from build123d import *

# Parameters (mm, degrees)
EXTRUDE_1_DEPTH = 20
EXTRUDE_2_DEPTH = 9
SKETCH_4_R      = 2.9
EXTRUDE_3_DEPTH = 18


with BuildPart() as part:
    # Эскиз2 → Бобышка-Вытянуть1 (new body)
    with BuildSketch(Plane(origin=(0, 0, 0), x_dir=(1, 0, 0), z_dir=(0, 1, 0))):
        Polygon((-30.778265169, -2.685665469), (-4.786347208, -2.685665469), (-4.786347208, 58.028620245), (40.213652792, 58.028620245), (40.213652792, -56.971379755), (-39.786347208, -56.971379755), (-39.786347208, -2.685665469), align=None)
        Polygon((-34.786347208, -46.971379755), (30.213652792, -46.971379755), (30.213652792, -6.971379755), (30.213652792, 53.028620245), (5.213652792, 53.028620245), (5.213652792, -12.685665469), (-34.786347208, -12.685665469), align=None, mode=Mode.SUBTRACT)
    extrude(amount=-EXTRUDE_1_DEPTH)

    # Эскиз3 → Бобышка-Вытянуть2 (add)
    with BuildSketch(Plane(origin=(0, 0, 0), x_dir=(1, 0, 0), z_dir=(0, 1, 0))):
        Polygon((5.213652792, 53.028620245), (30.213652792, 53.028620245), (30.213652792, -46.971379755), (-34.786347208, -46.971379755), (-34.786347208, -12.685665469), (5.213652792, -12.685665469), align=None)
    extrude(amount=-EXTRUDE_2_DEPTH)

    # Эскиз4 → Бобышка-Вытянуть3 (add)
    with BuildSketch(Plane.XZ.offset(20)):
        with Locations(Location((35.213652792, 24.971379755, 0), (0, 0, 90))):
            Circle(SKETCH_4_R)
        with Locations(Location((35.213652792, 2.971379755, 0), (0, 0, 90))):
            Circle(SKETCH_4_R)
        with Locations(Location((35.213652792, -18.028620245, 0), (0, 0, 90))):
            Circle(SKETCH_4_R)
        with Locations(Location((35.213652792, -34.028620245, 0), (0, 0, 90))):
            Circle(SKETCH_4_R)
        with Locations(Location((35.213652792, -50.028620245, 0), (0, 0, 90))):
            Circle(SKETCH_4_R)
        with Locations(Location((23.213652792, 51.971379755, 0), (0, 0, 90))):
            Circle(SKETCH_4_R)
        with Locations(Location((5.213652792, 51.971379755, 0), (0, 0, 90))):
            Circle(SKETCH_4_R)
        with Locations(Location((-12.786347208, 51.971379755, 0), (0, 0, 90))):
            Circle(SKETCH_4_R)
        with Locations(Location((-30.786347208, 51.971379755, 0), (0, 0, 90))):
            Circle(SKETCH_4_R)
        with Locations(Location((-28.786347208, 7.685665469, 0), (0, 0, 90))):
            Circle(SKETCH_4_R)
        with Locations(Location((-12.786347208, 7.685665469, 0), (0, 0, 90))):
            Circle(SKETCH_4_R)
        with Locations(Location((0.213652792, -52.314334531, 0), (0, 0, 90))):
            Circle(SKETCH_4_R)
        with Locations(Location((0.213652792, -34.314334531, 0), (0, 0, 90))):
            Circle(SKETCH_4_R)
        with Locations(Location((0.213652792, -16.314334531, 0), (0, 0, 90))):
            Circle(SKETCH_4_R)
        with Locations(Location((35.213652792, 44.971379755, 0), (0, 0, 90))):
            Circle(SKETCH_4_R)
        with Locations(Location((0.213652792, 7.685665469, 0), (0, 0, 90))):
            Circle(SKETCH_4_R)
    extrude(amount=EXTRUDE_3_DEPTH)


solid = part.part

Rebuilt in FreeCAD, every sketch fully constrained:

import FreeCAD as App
import Part
import Sketcher

V = App.Vector
Q = App.Units.Quantity

doc = App.newDocument("Part")
params = doc.addObject("Spreadsheet::Sheet", "Params")
for row, (alias, value) in enumerate([
    ("sketch1_width", "35 mm"),
    ("sketch1_width2", "80 mm"),
    ("sketch1_width3", "40 mm"),
    ("sketch1_width4", "25 mm"),
    ("sketch1_height", "115 mm"),
    ("pad1_length", "20 mm"),
    ("sketch2_width", "25 mm"),
    ("sketch2_width2", "40 mm"),
    ("sketch2_height", "100 mm"),
    ("pad2_length", "9 mm"),
    ("sketch3_diameter", "5.8 mm"),
    ("pad3_length", "18 mm"),
], start=1):
    params.set(f"A{row}", alias)
    params.set(f"B{row}", "=" + value)
    params.setAlias(f"B{row}", alias)

body = doc.addObject("PartDesign::Body", "Body")

sketch1 = body.newObject("Sketcher::SketchObject", "Sketch")
sketch1.AttachmentSupport = (doc.getObject("XZ_Plane"), [""])
sketch1.MapMode = "FlatFace"
sketch1.addGeometry(Part.LineSegment(V(-5, 3, 0), V(-40, 3, 0)), False)
sketch1.addGeometry(Part.LineSegment(V(-40, 3, 0), V(-40, 57, 0)), False)
sketch1.addGeometry(Part.LineSegment(V(-40, 57, 0), V(40, 57, 0)), False)
sketch1.addGeometry(Part.LineSegment(V(40, 57, 0), V(40, -58, 0)), False)
sketch1.addGeometry(Part.LineSegment(V(40, -58, 0), V(-5, -58, 0)), False)
sketch1.addGeometry(Part.LineSegment(V(-5, -58, 0), V(-5, 3, 0)), False)
sketch1.addGeometry(Part.LineSegment(V(-35, 47, 0), V(-35, 13, 0)), False)
sketch1.addGeometry(Part.LineSegment(V(-35, 13, 0), V(5, 13, 0)), False)
sketch1.addGeometry(Part.LineSegment(V(5, 13, 0), V(5, -53, 0)), False)
sketch1.addGeometry(Part.LineSegment(V(5, -53, 0), V(30, -53, 0)), False)
sketch1.addGeometry(Part.LineSegment(V(30, -53, 0), V(30, 47, 0)), False)
sketch1.addGeometry(Part.LineSegment(V(30, 47, 0), V(-35, 47, 0)), False)
sketch1.addConstraint(Sketcher.Constraint("Coincident", 0, 2, 1, 1))
sketch1.addConstraint(Sketcher.Constraint("Coincident", 1, 2, 2, 1))
sketch1.addConstraint(Sketcher.Constraint("Coincident", 2, 2, 3, 1))
sketch1.addConstraint(Sketcher.Constraint("Coincident", 3, 2, 4, 1))
sketch1.addConstraint(Sketcher.Constraint("Coincident", 4, 2, 5, 1))
sketch1.addConstraint(Sketcher.Constraint("Coincident", 5, 2, 0, 1))
sketch1.addConstraint(Sketcher.Constraint("Coincident", 6, 2, 7, 1))
sketch1.addConstraint(Sketcher.Constraint("Coincident", 7, 2, 8, 1))
sketch1.addConstraint(Sketcher.Constraint("Coincident", 8, 2, 9, 1))
sketch1.addConstraint(Sketcher.Constraint("Coincident", 9, 2, 10, 1))
sketch1.addConstraint(Sketcher.Constraint("Coincident", 10, 2, 11, 1))
sketch1.addConstraint(Sketcher.Constraint("Coincident", 11, 2, 6, 1))
sketch1.addConstraint(Sketcher.Constraint("Horizontal", 0))
sketch1.addConstraint(Sketcher.Constraint("Vertical", 1))
sketch1.addConstraint(Sketcher.Constraint("Horizontal", 2))
sketch1.addConstraint(Sketcher.Constraint("Vertical", 3))
sketch1.addConstraint(Sketcher.Constraint("Horizontal", 4))
sketch1.addConstraint(Sketcher.Constraint("Vertical", 5))
sketch1.addConstraint(Sketcher.Constraint("Vertical", 6))
sketch1.addConstraint(Sketcher.Constraint("Horizontal", 7))
sketch1.addConstraint(Sketcher.Constraint("Vertical", 8))
sketch1.addConstraint(Sketcher.Constraint("Horizontal", 9))
sketch1.addConstraint(Sketcher.Constraint("Vertical", 10))
sketch1.addConstraint(Sketcher.Constraint("Horizontal", 11))
sketch1.addConstraint(Sketcher.Constraint("DistanceX", 0, 2, 0, 1, Q("35 mm")))
sketch1.addConstraint(Sketcher.Constraint("DistanceX", 2, 1, 2, 2, Q("80 mm")))
sketch1.addConstraint(Sketcher.Constraint("DistanceX", 7, 1, 7, 2, Q("40 mm")))
sketch1.addConstraint(Sketcher.Constraint("DistanceX", 9, 1, 9, 2, Q("25 mm")))
sketch1.addConstraint(Sketcher.Constraint("DistanceY", 3, 2, 3, 1, Q("115 mm")))
sketch1.addConstraint(Sketcher.Constraint("DistanceY", 10, 1, 10, 2, Q("100 mm")))
sketch1.addConstraint(Sketcher.Constraint("DistanceX", 0, 2, 6, 2, Q("5 mm")))
sketch1.addConstraint(Sketcher.Constraint("DistanceY", 0, 2, 6, 2, Q("10 mm")))
sketch1.addConstraint(Sketcher.Constraint("DistanceY", 4, 2, 8, 2, Q("5 mm")))
sketch1.addConstraint(Sketcher.Constraint("DistanceY", 1, 1, 1, 2, Q("54.285714 mm")))
sketch1.addConstraint(Sketcher.Constraint("DistanceY", -1, 1, 1, 2, Q("56.97138 mm")))
sketch1.addConstraint(Sketcher.Constraint("DistanceX", 0, 2, -1, 1, Q("39.786347 mm")))
sketch1.setExpression("Constraints[24]", "Params.sketch1_width")
sketch1.setExpression("Constraints[25]", "Params.sketch1_width2")
sketch1.setExpression("Constraints[26]", "Params.sketch1_width3")
sketch1.setExpression("Constraints[27]", "Params.sketch1_width4")
sketch1.setExpression("Constraints[28]", "Params.sketch1_height")
pad1 = body.newObject("PartDesign::Pad", "Pad")
pad1.Profile = sketch1
pad1.setExpression("Length", "Params.pad1_length")

sketch2 = body.newObject("Sketcher::SketchObject", "Sketch001")
sketch2.AttachmentSupport = (doc.getObject("XZ_Plane"), [""])
sketch2.MapMode = "FlatFace"
sketch2.addGeometry(Part.LineSegment(V(30, -53, 0), V(5, -53, 0)), False)
sketch2.addGeometry(Part.LineSegment(V(5, -53, 0), V(5, 13, 0)), False)
sketch2.addGeometry(Part.LineSegment(V(5, 13, 0), V(-35, 13, 0)), False)
sketch2.addGeometry(Part.LineSegment(V(-35, 13, 0), V(-35, 47, 0)), False)
sketch2.addGeometry(Part.LineSegment(V(-35, 47, 0), V(30, 47, 0)), False)
sketch2.addGeometry(Part.LineSegment(V(30, 47, 0), V(30, -53, 0)), False)
sketch2.addConstraint(Sketcher.Constraint("Coincident", 0, 2, 1, 1))
sketch2.addConstraint(Sketcher.Constraint("Coincident", 1, 2, 2, 1))
sketch2.addConstraint(Sketcher.Constraint("Coincident", 2, 2, 3, 1))
sketch2.addConstraint(Sketcher.Constraint("Coincident", 3, 2, 4, 1))
sketch2.addConstraint(Sketcher.Constraint("Coincident", 4, 2, 5, 1))
sketch2.addConstraint(Sketcher.Constraint("Coincident", 5, 2, 0, 1))
sketch2.addConstraint(Sketcher.Constraint("Horizontal", 0))
sketch2.addConstraint(Sketcher.Constraint("Vertical", 1))
sketch2.addConstraint(Sketcher.Constraint("Horizontal", 2))
sketch2.addConstraint(Sketcher.Constraint("Vertical", 3))
sketch2.addConstraint(Sketcher.Constraint("Horizontal", 4))
sketch2.addConstraint(Sketcher.Constraint("Vertical", 5))
sketch2.addConstraint(Sketcher.Constraint("DistanceX", 0, 2, 0, 1, Q("25 mm")))
sketch2.addConstraint(Sketcher.Constraint("DistanceX", 2, 2, 2, 1, Q("40 mm")))
sketch2.addConstraint(Sketcher.Constraint("DistanceY", 5, 2, 5, 1, Q("100 mm")))
sketch2.addConstraint(Sketcher.Constraint("DistanceY", 1, 1, 1, 2, Q("65.714286 mm")))
sketch2.addConstraint(Sketcher.Constraint("DistanceY", 0, 2, -1, 1, Q("53.02862 mm")))
sketch2.addConstraint(Sketcher.Constraint("DistanceX", -1, 1, 0, 2, Q("5.213653 mm")))
sketch2.setExpression("Constraints[12]", "Params.sketch2_width")
sketch2.setExpression("Constraints[13]", "Params.sketch2_width2")
sketch2.setExpression("Constraints[14]", "Params.sketch2_height")
pad2 = body.newObject("PartDesign::Pad", "Pad001")
pad2.Profile = sketch2
pad2.setExpression("Length", "Params.pad2_length")

sketch3 = body.newObject("Sketcher::SketchObject", "Sketch002")
sketch3.AttachmentSupport = (doc.getObject("XZ_Plane"), [""])
sketch3.MapMode = "FlatFace"
sketch3.AttachmentOffset = App.Placement(V(0, 0, 20), App.Rotation())
sketch3.addGeometry(Part.Circle(V(35.2, 25, 0), V(0, 0, 1), 2.9), False)
sketch3.addGeometry(Part.Circle(V(35.2, 3, 0), V(0, 0, 1), 2.9), False)
sketch3.addGeometry(Part.Circle(V(35.2, -18, 0), V(0, 0, 1), 2.9), False)
sketch3.addGeometry(Part.Circle(V(35.2, -34, 0), V(0, 0, 1), 2.9), False)
sketch3.addGeometry(Part.Circle(V(35.2, -50, 0), V(0, 0, 1), 2.9), False)
sketch3.addGeometry(Part.Circle(V(23.2, 52, 0), V(0, 0, 1), 2.9), False)
sketch3.addGeometry(Part.Circle(V(5.2, 52, 0), V(0, 0, 1), 2.9), False)
sketch3.addGeometry(Part.Circle(V(-12.8, 52, 0), V(0, 0, 1), 2.9), False)
sketch3.addGeometry(Part.Circle(V(-30.8, 52, 0), V(0, 0, 1), 2.9), False)
sketch3.addGeometry(Part.Circle(V(-28.8, 7.7, 0), V(0, 0, 1), 2.9), False)
sketch3.addGeometry(Part.Circle(V(-12.8, 7.7, 0), V(0, 0, 1), 2.9), False)
sketch3.addGeometry(Part.Circle(V(0.2, -52.3, 0), V(0, 0, 1), 2.9), False)
sketch3.addGeometry(Part.Circle(V(0.2, -34.3, 0), V(0, 0, 1), 2.9), False)
sketch3.addGeometry(Part.Circle(V(0.2, -16.3, 0), V(0, 0, 1), 2.9), False)
sketch3.addGeometry(Part.Circle(V(35.2, 45, 0), V(0, 0, 1), 2.9), False)
sketch3.addGeometry(Part.Circle(V(0.2, 7.7, 0), V(0, 0, 1), 2.9), False)
sketch3.addConstraint(Sketcher.Constraint("Equal", 0, 1))
sketch3.addConstraint(Sketcher.Constraint("Equal", 1, 2))
sketch3.addConstraint(Sketcher.Constraint("Equal", 2, 3))
sketch3.addConstraint(Sketcher.Constraint("Equal", 3, 4))
sketch3.addConstraint(Sketcher.Constraint("Equal", 4, 5))
sketch3.addConstraint(Sketcher.Constraint("Equal", 5, 6))
sketch3.addConstraint(Sketcher.Constraint("Equal", 6, 7))
sketch3.addConstraint(Sketcher.Constraint("Equal", 7, 8))
sketch3.addConstraint(Sketcher.Constraint("Equal", 8, 9))
sketch3.addConstraint(Sketcher.Constraint("Equal", 9, 10))
sketch3.addConstraint(Sketcher.Constraint("Equal", 10, 11))
sketch3.addConstraint(Sketcher.Constraint("Equal", 11, 12))
sketch3.addConstraint(Sketcher.Constraint("Equal", 12, 13))
sketch3.addConstraint(Sketcher.Constraint("Equal", 13, 14))
sketch3.addConstraint(Sketcher.Constraint("Equal", 14, 15))
sketch3.addConstraint(Sketcher.Constraint("Horizontal", 5, 3, 6, 3))
sketch3.addConstraint(Sketcher.Constraint("Horizontal", 6, 3, 7, 3))
sketch3.addConstraint(Sketcher.Constraint("Horizontal", 7, 3, 8, 3))
sketch3.addConstraint(Sketcher.Constraint("Horizontal", 9, 3, 10, 3))
sketch3.addConstraint(Sketcher.Constraint("Horizontal", 10, 3, 15, 3))
sketch3.addConstraint(Sketcher.Constraint("Vertical", 0, 3, 1, 3))
sketch3.addConstraint(Sketcher.Constraint("Vertical", 1, 3, 2, 3))
sketch3.addConstraint(Sketcher.Constraint("Vertical", 2, 3, 3, 3))
sketch3.addConstraint(Sketcher.Constraint("Vertical", 3, 3, 4, 3))
sketch3.addConstraint(Sketcher.Constraint("Vertical", 7, 3, 10, 3))
sketch3.addConstraint(Sketcher.Constraint("Vertical", 11, 3, 12, 3))
sketch3.addConstraint(Sketcher.Constraint("Vertical", 12, 3, 13, 3))
sketch3.addConstraint(Sketcher.Constraint("Vertical", 4, 3, 14, 3))
sketch3.addConstraint(Sketcher.Constraint("Vertical", 13, 3, 15, 3))
sketch3.addConstraint(Sketcher.Constraint("Diameter", 0, Q("5.8 mm")))
sketch3.addConstraint(Sketcher.Constraint("DistanceY", 1, 3, 0, 3, Q("22 mm")))
sketch3.addConstraint(Sketcher.Constraint("DistanceY", 2, 3, 1, 3, Q("21 mm")))
sketch3.addConstraint(Sketcher.Constraint("DistanceY", 3, 3, 2, 3, Q("16 mm")))
sketch3.addConstraint(Sketcher.Constraint("DistanceY", 4, 3, 3, 3, Q("16 mm")))
sketch3.addConstraint(Sketcher.Constraint("DistanceX", 5, 3, 0, 3, Q("12 mm")))
sketch3.addConstraint(Sketcher.Constraint("DistanceY", 0, 3, 5, 3, Q("27 mm")))
sketch3.addConstraint(Sketcher.Constraint("DistanceX", 6, 3, 5, 3, Q("18 mm")))
sketch3.addConstraint(Sketcher.Constraint("DistanceX", 7, 3, 6, 3, Q("18 mm")))
sketch3.addConstraint(Sketcher.Constraint("DistanceX", 8, 3, 7, 3, Q("18 mm")))
sketch3.addConstraint(Sketcher.Constraint("DistanceX", 8, 3, 9, 3, Q("2 mm")))
sketch3.addConstraint(Sketcher.Constraint("DistanceX", 11, 3, 4, 3, Q("35 mm")))
sketch3.addConstraint(Sketcher.Constraint("DistanceY", 11, 3, 10, 3, Q("60 mm")))
sketch3.addConstraint(Sketcher.Constraint("DistanceY", 11, 3, 12, 3, Q("18 mm")))
sketch3.addConstraint(Sketcher.Constraint("DistanceY", 12, 3, 13, 3, Q("18 mm")))
sketch3.addConstraint(Sketcher.Constraint("DistanceY", 14, 3, 5, 3, Q("7 mm")))
sketch3.addConstraint(Sketcher.Constraint("DistanceY", -1, 1, 0, 3, Q("24.97138 mm")))
sketch3.addConstraint(Sketcher.Constraint("DistanceX", -1, 1, 0, 3, Q("35.213653 mm")))
sketch3.addConstraint(Sketcher.Constraint("DistanceY", -1, 1, 9, 3, Q("7.685665 mm")))
sketch3.setExpression("Constraints[29]", "Params.sketch3_diameter")
pad3 = body.newObject("PartDesign::Pad", "Pad002")
pad3.Profile = sketch3
pad3.setExpression("Length", "Params.pad3_length")

doc.recompute()
